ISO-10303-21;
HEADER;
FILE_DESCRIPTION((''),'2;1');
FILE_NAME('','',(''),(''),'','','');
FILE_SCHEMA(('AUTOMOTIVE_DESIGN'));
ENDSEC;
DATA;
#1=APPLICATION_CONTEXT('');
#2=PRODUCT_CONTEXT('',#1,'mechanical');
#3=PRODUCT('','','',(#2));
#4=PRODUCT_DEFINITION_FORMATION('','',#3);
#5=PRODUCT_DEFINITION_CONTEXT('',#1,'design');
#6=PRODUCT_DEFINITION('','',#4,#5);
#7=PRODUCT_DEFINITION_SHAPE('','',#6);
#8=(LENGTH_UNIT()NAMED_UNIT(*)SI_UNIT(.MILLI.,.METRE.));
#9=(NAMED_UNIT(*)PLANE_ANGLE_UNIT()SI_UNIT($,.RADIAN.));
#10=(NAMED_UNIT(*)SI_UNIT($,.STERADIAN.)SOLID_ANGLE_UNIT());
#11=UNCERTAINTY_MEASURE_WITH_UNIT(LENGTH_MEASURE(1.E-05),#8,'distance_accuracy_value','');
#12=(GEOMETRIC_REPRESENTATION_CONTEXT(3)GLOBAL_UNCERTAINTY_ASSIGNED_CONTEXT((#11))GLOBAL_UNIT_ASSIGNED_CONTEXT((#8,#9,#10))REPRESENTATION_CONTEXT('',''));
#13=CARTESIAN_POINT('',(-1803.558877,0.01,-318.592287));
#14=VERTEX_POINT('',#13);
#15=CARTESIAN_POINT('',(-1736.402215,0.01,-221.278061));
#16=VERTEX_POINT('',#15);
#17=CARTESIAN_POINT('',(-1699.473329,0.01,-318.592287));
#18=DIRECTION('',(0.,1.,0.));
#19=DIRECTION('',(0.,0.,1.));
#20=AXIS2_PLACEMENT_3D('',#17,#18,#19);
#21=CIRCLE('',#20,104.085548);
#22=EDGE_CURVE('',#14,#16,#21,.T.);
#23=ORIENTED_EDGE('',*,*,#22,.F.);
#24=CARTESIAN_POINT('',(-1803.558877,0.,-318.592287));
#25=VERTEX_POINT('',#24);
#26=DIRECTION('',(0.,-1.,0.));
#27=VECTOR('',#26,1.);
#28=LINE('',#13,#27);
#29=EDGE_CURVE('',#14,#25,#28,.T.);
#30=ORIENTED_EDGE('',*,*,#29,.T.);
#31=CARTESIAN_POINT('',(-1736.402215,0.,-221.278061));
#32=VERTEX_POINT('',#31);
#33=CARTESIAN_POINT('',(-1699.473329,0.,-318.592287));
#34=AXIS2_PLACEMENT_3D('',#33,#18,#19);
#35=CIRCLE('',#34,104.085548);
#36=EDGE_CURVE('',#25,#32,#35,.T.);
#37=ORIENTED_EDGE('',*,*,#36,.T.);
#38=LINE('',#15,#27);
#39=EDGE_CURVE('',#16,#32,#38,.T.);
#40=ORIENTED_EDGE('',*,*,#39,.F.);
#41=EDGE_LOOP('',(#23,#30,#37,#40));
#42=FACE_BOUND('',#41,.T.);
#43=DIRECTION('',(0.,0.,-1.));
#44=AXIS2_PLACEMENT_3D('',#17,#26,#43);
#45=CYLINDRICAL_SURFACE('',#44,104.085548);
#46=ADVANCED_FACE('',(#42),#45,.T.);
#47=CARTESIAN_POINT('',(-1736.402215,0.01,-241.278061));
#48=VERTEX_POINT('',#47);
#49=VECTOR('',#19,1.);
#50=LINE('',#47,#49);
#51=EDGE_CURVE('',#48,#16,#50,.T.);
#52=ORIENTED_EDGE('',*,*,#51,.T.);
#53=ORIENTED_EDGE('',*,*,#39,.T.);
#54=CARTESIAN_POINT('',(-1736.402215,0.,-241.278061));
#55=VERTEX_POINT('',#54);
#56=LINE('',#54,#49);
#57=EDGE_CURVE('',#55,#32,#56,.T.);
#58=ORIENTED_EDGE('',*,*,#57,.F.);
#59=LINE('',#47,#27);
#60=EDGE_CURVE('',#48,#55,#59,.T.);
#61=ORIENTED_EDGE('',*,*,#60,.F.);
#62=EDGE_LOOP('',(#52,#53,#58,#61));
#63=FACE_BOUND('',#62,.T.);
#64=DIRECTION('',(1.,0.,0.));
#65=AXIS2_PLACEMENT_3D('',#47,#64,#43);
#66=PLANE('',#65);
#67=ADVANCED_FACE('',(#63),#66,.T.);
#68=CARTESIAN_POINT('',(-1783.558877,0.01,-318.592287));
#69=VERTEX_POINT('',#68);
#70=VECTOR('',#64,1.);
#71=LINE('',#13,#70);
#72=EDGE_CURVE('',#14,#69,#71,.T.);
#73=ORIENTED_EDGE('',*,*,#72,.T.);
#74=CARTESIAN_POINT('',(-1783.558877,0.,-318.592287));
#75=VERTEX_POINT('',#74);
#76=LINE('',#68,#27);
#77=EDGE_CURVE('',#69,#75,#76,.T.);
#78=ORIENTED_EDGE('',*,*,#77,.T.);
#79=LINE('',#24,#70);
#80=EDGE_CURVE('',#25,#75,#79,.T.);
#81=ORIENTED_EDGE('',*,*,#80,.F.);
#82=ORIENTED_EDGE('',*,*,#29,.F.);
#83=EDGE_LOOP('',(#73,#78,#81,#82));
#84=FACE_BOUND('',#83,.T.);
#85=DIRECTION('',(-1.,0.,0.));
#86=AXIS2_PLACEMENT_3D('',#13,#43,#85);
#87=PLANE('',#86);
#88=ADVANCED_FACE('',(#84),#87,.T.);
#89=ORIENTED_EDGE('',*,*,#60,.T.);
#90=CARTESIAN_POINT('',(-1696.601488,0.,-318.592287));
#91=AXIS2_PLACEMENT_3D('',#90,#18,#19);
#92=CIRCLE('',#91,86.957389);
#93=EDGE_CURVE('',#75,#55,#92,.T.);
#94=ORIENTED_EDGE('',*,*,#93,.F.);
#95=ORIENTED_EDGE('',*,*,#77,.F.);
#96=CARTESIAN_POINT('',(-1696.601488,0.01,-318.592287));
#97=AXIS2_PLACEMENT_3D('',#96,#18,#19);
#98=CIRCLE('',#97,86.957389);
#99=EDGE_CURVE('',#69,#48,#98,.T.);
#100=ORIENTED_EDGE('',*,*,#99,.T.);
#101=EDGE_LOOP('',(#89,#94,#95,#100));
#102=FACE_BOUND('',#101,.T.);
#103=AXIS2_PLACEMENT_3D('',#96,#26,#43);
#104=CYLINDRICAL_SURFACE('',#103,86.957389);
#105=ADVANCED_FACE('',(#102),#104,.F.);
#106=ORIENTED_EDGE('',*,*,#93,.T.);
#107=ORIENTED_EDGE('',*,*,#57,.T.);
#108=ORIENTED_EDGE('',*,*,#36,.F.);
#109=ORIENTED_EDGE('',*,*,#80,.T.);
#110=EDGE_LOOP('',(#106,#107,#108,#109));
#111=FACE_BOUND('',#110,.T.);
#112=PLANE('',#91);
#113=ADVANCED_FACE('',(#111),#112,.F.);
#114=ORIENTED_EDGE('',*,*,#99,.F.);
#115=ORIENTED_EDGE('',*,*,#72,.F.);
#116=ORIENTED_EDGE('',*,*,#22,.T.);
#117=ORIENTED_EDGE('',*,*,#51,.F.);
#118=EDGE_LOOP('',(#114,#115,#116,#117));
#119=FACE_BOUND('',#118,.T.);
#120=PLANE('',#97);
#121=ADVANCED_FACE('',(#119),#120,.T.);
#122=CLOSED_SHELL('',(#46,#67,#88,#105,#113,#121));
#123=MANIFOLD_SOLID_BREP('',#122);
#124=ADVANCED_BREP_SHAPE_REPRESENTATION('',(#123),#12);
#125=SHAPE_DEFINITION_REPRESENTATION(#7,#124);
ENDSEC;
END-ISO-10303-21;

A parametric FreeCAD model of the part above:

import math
import FreeCAD as App
import Part
import Sketcher

V = App.Vector
Q = App.Units.Quantity

doc = App.newDocument("Part")
body = doc.addObject("PartDesign::Body", "Body")

# Sketch on XZ plane
sketch1 = body.newObject("Sketcher::SketchObject", "Sketch")
sketch1.AttachmentSupport = (doc.getObject("XZ_Plane"), [""])
sketch1.MapMode = "FlatFace"
sketch1.addGeometry([
    Part.LineSegment(V(-1736, -221, 0), V(-1736, -241, 0)),
    Part.ArcOfCircle(Part.Circle(V(-1697, -319, 0), V(0, 0, 1), 87), math.radians(117), math.radians(180)),
    Part.LineSegment(V(-1784, -319, 0), V(-1804, -319, 0)),
    Part.ArcOfCircle(Part.Circle(V(-1699, -319, 0), V(0, 0, 1), 104), math.radians(111), math.radians(180)),
], False)
sketch1.addConstraint([
    Sketcher.Constraint("Coincident", 0, 2, 1, 1),
    Sketcher.Constraint("Coincident", 1, 2, 2, 1),
    Sketcher.Constraint("Coincident", 2, 2, 3, 2),
    Sketcher.Constraint("Coincident", 3, 1, 0, 1),
    Sketcher.Constraint("Vertical", 0),
    Sketcher.Constraint("Horizontal", 2),
    Sketcher.Constraint("Horizontal", 1, 3, 3, 3),
    Sketcher.Constraint("Horizontal", 3, 3, 1, 2),
    Sketcher.Constraint("Equal", 2, 0),
    Sketcher.Constraint("DistanceX", 2, 2, 2, 1, Q("20 mm")),
    Sketcher.Constraint("Radius", 1, Q("86.957389 mm")),
    Sketcher.Constraint("Radius", 3, Q("104.085548 mm")),
    Sketcher.Constraint("DistanceX", 1, 3, -1, 1, Q("1696.601488 mm")),
    Sketcher.Constraint("DistanceY", 0, 2, -1, 1, Q("241.278061 mm")),
])
pad1 = body.newObject("PartDesign::Pad", "Pad")
pad1.Profile = sketch1
pad1.Length = 0.01
pad1.Reversed = True

doc.recompute()
